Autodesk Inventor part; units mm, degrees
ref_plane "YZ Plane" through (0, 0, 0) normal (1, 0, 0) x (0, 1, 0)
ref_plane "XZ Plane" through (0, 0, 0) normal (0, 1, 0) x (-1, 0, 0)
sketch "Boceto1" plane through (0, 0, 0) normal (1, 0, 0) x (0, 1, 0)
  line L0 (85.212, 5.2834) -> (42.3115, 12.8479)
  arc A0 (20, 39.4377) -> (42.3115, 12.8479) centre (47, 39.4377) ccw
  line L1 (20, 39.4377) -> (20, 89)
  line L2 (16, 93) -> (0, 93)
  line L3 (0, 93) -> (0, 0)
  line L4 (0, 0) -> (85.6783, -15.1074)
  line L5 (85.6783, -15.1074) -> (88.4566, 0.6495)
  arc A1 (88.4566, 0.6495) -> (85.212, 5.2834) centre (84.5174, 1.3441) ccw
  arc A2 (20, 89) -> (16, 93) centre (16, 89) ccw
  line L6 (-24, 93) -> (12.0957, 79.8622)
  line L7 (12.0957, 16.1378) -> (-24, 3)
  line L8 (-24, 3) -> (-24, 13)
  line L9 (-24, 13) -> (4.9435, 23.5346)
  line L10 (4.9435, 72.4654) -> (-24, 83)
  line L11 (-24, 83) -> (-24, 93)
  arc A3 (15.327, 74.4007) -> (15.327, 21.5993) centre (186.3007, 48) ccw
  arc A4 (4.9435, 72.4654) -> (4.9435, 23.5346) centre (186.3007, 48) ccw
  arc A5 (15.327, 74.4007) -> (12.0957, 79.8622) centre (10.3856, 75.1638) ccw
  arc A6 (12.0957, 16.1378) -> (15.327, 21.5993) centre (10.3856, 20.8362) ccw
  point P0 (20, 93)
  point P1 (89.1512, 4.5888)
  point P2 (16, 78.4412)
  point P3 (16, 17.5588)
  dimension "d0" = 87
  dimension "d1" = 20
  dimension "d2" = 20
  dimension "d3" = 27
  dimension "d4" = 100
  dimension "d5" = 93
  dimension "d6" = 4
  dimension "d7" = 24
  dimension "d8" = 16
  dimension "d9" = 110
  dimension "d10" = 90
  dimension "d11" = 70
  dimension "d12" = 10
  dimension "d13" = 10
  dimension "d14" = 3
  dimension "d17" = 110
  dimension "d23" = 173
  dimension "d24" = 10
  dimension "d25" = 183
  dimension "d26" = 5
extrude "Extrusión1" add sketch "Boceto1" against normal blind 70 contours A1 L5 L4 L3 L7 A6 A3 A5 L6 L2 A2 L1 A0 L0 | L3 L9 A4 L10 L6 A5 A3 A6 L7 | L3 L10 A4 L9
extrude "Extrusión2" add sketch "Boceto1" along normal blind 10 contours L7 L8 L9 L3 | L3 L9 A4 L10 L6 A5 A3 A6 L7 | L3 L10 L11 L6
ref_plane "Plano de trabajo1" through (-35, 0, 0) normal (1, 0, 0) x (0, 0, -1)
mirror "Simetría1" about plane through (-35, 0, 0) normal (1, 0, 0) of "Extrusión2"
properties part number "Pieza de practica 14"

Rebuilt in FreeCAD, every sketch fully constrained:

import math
import FreeCAD as App
import Part
import Sketcher
from FreeCAD import Vector
Q = App.Units.Quantity

doc = App.newDocument("Part")
params = doc.addObject("Spreadsheet::Sheet", "Params")
for row, (alias, value) in enumerate([
    ("sketch1_radius", "4 mm"),
    ("sketch1_radius2", "27 mm"),
    ("sketch1_width", "16 mm"),
    ("sketch1_height", "93 mm"),
    ("sketch1_length", "87 mm"),
    ("pad1_length", "70 mm"),
    ("sketch2_radius", "5 mm"),
    ("sketch2_radius2", "173 mm"),
    ("sketch2_radius3", "183 mm"),
    ("sketch2_height", "10 mm"),
    ("pad2_length", "10 mm"),
], start=1):
    params.set(f"A{row}", alias)
    params.set(f"B{row}", "=" + value)
    params.setAlias(f"B{row}", alias)

body = doc.addObject("PartDesign::Body", "Body")

# Sketch on YZ plane
sketch1 = body.newObject("Sketcher::SketchObject", "Sketch")
sketch1.AttachmentSupport = (doc.getObject("YZ_Plane"), [""])
sketch1.MapMode = "FlatFace"
sketch1.addGeometry([
    Part.ArcOfCircle(Part.Circle(Vector(84.5, 1.3, 0), Vector(0, 0, 1), 4), math.radians(-10), math.radians(80)),  # 0
    Part.LineSegment(Vector(85.2, 5.3, 0), Vector(42.3, 12.8, 0)),  # 1
    Part.ArcOfCircle(Part.Circle(Vector(47, 39.4, 0), Vector(0, 0, 1), 27), math.radians(180), math.radians(260)),  # 2
    Part.LineSegment(Vector(20, 39.4, 0), Vector(20, 89, 0)),  # 3
    Part.ArcOfCircle(Part.Circle(Vector(16, 89, 0), Vector(0, 0, 1), 4), math.radians(0), math.radians(90)),  # 4
    Part.LineSegment(Vector(16, 93, 0), Vector(0, 93, 0)),  # 5
    Part.LineSegment(Vector(0, 93, 0), Vector(0, 0, 0)),  # 6
    Part.LineSegment(Vector(0, 0, 0), Vector(85.7, -15.1, 0)),  # 7
    Part.LineSegment(Vector(85.7, -15.1, 0), Vector(88.5, 0.6, 0)),  # 8
], False)
sketch1.addConstraint([
    Sketcher.Constraint("Tangent", 0, 2, 1, 1),
    Sketcher.Constraint("Tangent", 1, 2, 2, 2),
    Sketcher.Constraint("Tangent", 2, 1, 3, 1),
    Sketcher.Constraint("Tangent", 3, 2, 4, 1),
    Sketcher.Constraint("Tangent", 4, 2, 5, 1),
    Sketcher.Constraint("Coincident", 5, 2, 6, 1),
    Sketcher.Constraint("Coincident", 6, 2, 7, 1),
    Sketcher.Constraint("Coincident", 7, 2, 8, 1),
    Sketcher.Constraint("Tangent", 8, 2, 0, 1),
    Sketcher.Constraint("Vertical", 3),
    Sketcher.Constraint("Horizontal", 5),
    Sketcher.Constraint("Vertical", 6),
    Sketcher.Constraint("Coincident", 6, 2, -1, 1),
    Sketcher.Constraint("Equal", 0, 4),
    Sketcher.Constraint("Parallel", 1, 7),
    Sketcher.Constraint("Perpendicular", 7, 8),
    Sketcher.Constraint("Radius", 0, Q("4 mm")),
    Sketcher.Constraint("Radius", 2, Q("27 mm")),
    Sketcher.Constraint("DistanceX", 5, 2, 5, 1, Q("16 mm")),
    Sketcher.Constraint("DistanceY", 6, 2, 6, 1, Q("93 mm")),
    Sketcher.Constraint("Angle", 7, Q("-10 deg")),
    Sketcher.Constraint("Distance", 7, Q("87 mm")),
    Sketcher.Constraint("Distance", 8, Q("16 mm")),
])
sketch1.setExpression("Constraints[16]", "Params.sketch1_radius")
sketch1.setExpression("Constraints[17]", "Params.sketch1_radius2")
sketch1.setExpression("Constraints[18]", "Params.sketch1_width")
sketch1.setExpression("Constraints[19]", "Params.sketch1_height")
sketch1.setExpression("Constraints[21]", "Params.sketch1_length")
pad1 = body.newObject("PartDesign::Pad", "Pad")
pad1.Profile = sketch1
pad1.setExpression("Length", "Params.pad1_length")
pad1.Reversed = True

# Sketch on YZ plane
sketch2 = body.newObject("Sketcher::SketchObject", "Sketch001")
sketch2.AttachmentSupport = (doc.getObject("YZ_Plane"), [""])
sketch2.MapMode = "FlatFace"
sketch2.addGeometry([
    Part.LineSegment(Vector(-24, 3, 0), Vector(12.1, 16.1, 0)),  # 0
    Part.ArcOfCircle(Part.Circle(Vector(10.4, 20.8, 0), Vector(0, 0, 1), 5), math.radians(-70), math.radians(9)),  # 1
    Part.ArcOfCircle(Part.Circle(Vector(186.3, 48, 0), Vector(0, 0, 1), 173), math.radians(171.22), math.radians(188.78)),  # 2
    Part.ArcOfCircle(Part.Circle(Vector(10.4, 75.2, 0), Vector(0, 0, 1), 5), math.radians(-9), math.radians(70)),  # 3
    Part.LineSegment(Vector(12.1, 79.9, 0), Vector(-24, 93, 0)),  # 4
    Part.LineSegment(Vector(-24, 93, 0), Vector(-24, 83, 0)),  # 5
    Part.LineSegment(Vector(-24, 83, 0), Vector(4.9, 72.5, 0)),  # 6
    Part.ArcOfCircle(Part.Circle(Vector(186.3, 48, 0), Vector(0, 0, 1), 183), math.radians(172.32), math.radians(187.68)),  # 7
    Part.LineSegment(Vector(4.9, 23.5, 0), Vector(-24, 13, 0)),  # 8
    Part.LineSegment(Vector(-24, 13, 0), Vector(-24, 3, 0)),  # 9
], False)
sketch2.addConstraint([
    Sketcher.Constraint("Tangent", 0, 2, 1, 1),
    Sketcher.Constraint("Tangent", 1, 2, 2, 2),
    Sketcher.Constraint("Tangent", 2, 1, 3, 1),
    Sketcher.Constraint("Tangent", 3, 2, 4, 1),
    Sketcher.Constraint("Coincident", 4, 2, 5, 1),
    Sketcher.Constraint("Coincident", 5, 2, 6, 1),
    Sketcher.Constraint("Coincident", 6, 2, 7, 1),
    Sketcher.Constraint("Coincident", 7, 2, 8, 1),
    Sketcher.Constraint("Coincident", 8, 2, 9, 1),
    Sketcher.Constraint("Coincident", 9, 2, 0, 1),
    Sketcher.Constraint("Vertical", 5),
    Sketcher.Constraint("Vertical", 9),
    Sketcher.Constraint("Coincident", 7, 3, 2, 3),
    Sketcher.Constraint("Equal", 1, 3),
    Sketcher.Constraint("Parallel", 4, 6),
    Sketcher.Constraint("Parallel", 0, 8),
    Sketcher.Constraint("Vertical", 1, 3, 3, 3),
    Sketcher.Constraint("Vertical", 0, 2, 3, 2),
    Sketcher.Constraint("Vertical", 6, 2, 7, 2),
    Sketcher.Constraint("Vertical", 5, 2, 8, 2),
    Sketcher.Constraint("Radius", 1, Q("5 mm")),
    Sketcher.Constraint("Radius", 2, Q("173 mm")),
    Sketcher.Constraint("Radius", 7, Q("183 mm")),
    Sketcher.Constraint("DistanceY", 5, 2, 5, 1, Q("10 mm")),
    Sketcher.Constraint("Angle", 0, Q("20 deg")),
    Sketcher.Constraint("DistanceX", 4, 2, -1, 1, Q("24 mm")),
    Sketcher.Constraint("DistanceY", -1, 1, 4, 2, Q("93 mm")),
    Sketcher.Constraint("DistanceY", -1, 1, 9, 2, Q("3 mm")),
    Sketcher.Constraint("Distance", 6, Q("30.801 mm")),
])
sketch2.setExpression("Constraints[20]", "Params.sketch2_radius")
sketch2.setExpression("Constraints[21]", "Params.sketch2_radius2")
sketch2.setExpression("Constraints[22]", "Params.sketch2_radius3")
sketch2.setExpression("Constraints[23]", "Params.sketch2_height")
pad2 = body.newObject("PartDesign::Pad", "Pad001")
pad2.Profile = sketch2
pad2.setExpression("Length", "Params.pad2_length")
doc.recompute()

datumplane = body.newObject("PartDesign::Plane", "DatumPlane")
datumplane.AttachmentSupport = (doc.getObject("YZ_Plane"), [""])
datumplane.MapMode = "FlatFace"
datumplane.AttachmentOffset = App.Placement(Vector(0, 0, -35), App.Rotation())
mirrored = body.newObject("PartDesign::Mirrored", "Mirrored")
mirrored.Originals = [pad2]
mirrored.MirrorPlane = (datumplane, [""])
body.Tip = mirrored

doc.recompute()
